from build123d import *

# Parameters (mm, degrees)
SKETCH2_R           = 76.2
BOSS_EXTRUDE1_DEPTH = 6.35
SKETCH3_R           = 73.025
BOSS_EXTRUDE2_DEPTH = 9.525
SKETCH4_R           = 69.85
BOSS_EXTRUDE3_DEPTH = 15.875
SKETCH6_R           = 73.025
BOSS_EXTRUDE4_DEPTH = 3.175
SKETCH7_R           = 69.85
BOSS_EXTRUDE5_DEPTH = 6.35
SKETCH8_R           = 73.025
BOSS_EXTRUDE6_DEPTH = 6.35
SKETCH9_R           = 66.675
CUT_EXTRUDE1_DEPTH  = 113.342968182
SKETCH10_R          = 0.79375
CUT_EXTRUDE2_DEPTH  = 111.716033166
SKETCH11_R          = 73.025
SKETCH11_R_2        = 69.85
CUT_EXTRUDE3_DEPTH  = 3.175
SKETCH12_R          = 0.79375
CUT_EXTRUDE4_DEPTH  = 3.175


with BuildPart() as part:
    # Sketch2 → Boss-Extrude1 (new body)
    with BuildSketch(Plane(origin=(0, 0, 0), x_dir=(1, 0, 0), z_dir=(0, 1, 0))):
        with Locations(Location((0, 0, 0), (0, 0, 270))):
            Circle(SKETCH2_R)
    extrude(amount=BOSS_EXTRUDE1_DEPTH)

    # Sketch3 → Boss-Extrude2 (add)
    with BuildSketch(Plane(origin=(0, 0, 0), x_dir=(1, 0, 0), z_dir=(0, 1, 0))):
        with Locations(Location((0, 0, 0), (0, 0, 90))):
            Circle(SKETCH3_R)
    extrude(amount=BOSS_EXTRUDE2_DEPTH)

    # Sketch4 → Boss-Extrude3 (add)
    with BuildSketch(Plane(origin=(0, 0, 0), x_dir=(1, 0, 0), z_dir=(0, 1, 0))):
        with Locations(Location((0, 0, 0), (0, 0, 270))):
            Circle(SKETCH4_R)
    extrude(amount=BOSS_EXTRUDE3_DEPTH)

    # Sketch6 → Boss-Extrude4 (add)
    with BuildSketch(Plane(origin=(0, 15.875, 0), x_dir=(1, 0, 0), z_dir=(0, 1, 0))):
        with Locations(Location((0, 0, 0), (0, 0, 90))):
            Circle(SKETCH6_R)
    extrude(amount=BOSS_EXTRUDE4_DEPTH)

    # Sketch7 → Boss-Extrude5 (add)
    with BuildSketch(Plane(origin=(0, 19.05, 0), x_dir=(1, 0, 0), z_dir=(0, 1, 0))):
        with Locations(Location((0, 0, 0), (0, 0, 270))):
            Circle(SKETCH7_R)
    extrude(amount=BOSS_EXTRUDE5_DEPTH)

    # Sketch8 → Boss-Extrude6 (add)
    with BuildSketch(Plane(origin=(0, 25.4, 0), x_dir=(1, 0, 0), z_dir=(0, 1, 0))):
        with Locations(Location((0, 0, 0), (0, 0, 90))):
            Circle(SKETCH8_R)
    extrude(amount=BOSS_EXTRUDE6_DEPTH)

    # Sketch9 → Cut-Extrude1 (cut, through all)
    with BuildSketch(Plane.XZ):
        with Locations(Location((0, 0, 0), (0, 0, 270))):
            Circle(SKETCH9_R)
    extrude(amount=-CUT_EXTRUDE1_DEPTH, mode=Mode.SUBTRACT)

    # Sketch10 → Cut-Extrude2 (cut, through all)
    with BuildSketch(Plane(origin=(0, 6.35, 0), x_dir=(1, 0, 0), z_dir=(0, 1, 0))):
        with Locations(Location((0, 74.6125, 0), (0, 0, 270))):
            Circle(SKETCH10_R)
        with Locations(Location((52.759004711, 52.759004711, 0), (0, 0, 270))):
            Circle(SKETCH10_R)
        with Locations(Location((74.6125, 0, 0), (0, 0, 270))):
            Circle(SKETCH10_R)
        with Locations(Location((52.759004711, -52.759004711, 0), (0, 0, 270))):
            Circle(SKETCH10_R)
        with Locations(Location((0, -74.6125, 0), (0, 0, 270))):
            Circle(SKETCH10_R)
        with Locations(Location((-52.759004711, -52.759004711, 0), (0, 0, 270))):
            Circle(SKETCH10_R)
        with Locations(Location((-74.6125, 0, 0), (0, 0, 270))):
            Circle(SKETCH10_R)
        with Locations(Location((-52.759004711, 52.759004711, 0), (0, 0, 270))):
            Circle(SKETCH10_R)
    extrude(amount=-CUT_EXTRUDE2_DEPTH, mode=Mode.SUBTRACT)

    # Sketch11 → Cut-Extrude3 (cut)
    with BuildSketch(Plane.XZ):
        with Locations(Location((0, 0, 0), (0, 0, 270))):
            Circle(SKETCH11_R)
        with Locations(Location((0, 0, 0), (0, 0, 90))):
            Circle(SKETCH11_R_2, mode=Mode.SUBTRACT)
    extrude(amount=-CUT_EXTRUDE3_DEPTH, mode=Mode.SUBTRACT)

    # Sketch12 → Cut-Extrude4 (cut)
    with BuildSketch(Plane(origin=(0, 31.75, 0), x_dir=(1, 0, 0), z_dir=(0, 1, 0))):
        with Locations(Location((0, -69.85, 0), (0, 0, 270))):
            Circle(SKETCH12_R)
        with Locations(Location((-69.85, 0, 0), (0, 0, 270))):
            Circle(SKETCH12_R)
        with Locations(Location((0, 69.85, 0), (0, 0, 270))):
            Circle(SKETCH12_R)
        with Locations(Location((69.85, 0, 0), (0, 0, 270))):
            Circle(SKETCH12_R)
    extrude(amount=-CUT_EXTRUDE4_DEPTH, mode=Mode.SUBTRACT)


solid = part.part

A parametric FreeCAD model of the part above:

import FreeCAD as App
import Part
import Sketcher

V = App.Vector
Q = App.Units.Quantity

doc = App.newDocument("Part")
body = doc.addObject("PartDesign::Body", "Body")

sketch1 = body.newObject("Sketcher::SketchObject", "Sketch")
sketch1.AttachmentSupport = (doc.getObject("XZ_Plane"), [""])
sketch1.MapMode = "FlatFace"
sketch1.addGeometry(Part.Circle(V(0, 0, 0), V(0, 0, 1), 76), False)
sketch1.addConstraint(Sketcher.Constraint("Coincident", 0, 3, -1, 1))
sketch1.addConstraint(Sketcher.Constraint("Diameter", 0, Q("6 in")))
pad1 = body.newObject("PartDesign::Pad", "Pad")
pad1.Profile = sketch1
pad1.Length = Q("0.25 in")
pad1.Reversed = True

sketch2 = body.newObject("Sketcher::SketchObject", "Sketch001")
sketch2.AttachmentSupport = (doc.getObject("XZ_Plane"), [""])
sketch2.MapMode = "FlatFace"
sketch2.addGeometry(Part.Circle(V(0, 0, 0), V(0, 0, 1), 73), False)
sketch2.addConstraint(Sketcher.Constraint("Coincident", 0, 3, -1, 1))
sketch2.addConstraint(Sketcher.Constraint("Diameter", 0, Q("5.75 in")))
pad2 = body.newObject("PartDesign::Pad", "Pad001")
pad2.Profile = sketch2
pad2.Length = Q("0.375 in")
pad2.Reversed = True

sketch3 = body.newObject("Sketcher::SketchObject", "Sketch002")
sketch3.AttachmentSupport = (doc.getObject("XZ_Plane"), [""])
sketch3.MapMode = "FlatFace"
sketch3.addGeometry(Part.Circle(V(0, 0, 0), V(0, 0, 1), 70), False)
sketch3.addConstraint(Sketcher.Constraint("Coincident", 0, 3, -1, 1))
sketch3.addConstraint(Sketcher.Constraint("Diameter", 0, Q("5.5 in")))
pad3 = body.newObject("PartDesign::Pad", "Pad002")
pad3.Profile = sketch3
pad3.Length = Q("0.625 in")
pad3.Reversed = True

sketch4 = body.newObject("Sketcher::SketchObject", "Sketch003")
sketch4.AttachmentSupport = (doc.getObject("XZ_Plane"), [""])
sketch4.MapMode = "FlatFace"
sketch4.AttachmentOffset = App.Placement(V(0, 0, -0.625 * 25.4), App.Rotation())
sketch4.addGeometry(Part.Circle(V(0, 0, 0), V(0, 0, 1), 73), False)
sketch4.addConstraint(Sketcher.Constraint("Coincident", 0, 3, -1, 1))
sketch4.addConstraint(Sketcher.Constraint("Diameter", 0, Q("5.75 in")))
pad4 = body.newObject("PartDesign::Pad", "Pad003")
pad4.Profile = sketch4
pad4.Length = Q("0.125 in")
pad4.Reversed = True

sketch5 = body.newObject("Sketcher::SketchObject", "Sketch004")
sketch5.AttachmentSupport = (doc.getObject("XZ_Plane"), [""])
sketch5.MapMode = "FlatFace"
sketch5.AttachmentOffset = App.Placement(V(0, 0, -0.75 * 25.4), App.Rotation())
sketch5.addGeometry(Part.Circle(V(0, 0, 0), V(0, 0, 1), 70), False)
sketch5.addConstraint(Sketcher.Constraint("Coincident", 0, 3, -1, 1))
sketch5.addConstraint(Sketcher.Constraint("Diameter", 0, Q("5.5 in")))
pad5 = body.newObject("PartDesign::Pad", "Pad004")
pad5.Profile = sketch5
pad5.Length = Q("0.25 in")
pad5.Reversed = True

sketch6 = body.newObject("Sketcher::SketchObject", "Sketch005")
sketch6.AttachmentSupport = (doc.getObject("XZ_Plane"), [""])
sketch6.MapMode = "FlatFace"
sketch6.AttachmentOffset = App.Placement(V(0, 0, -1 * 25.4), App.Rotation())
sketch6.addGeometry(Part.Circle(V(0, 0, 0), V(0, 0, 1), 73), False)
sketch6.addConstraint(Sketcher.Constraint("Coincident", 0, 3, -1, 1))
sketch6.addConstraint(Sketcher.Constraint("Diameter", 0, Q("5.75 in")))
pad6 = body.newObject("PartDesign::Pad", "Pad005")
pad6.Profile = sketch6
pad6.Length = Q("0.25 in")
pad6.Reversed = True

sketch7 = body.newObject("Sketcher::SketchObject", "Sketch006")
sketch7.AttachmentSupport = (doc.getObject("XZ_Plane"), [""])
sketch7.MapMode = "FlatFace"
sketch7.addGeometry(Part.Circle(V(0, 0, 0), V(0, 0, 1), 67), False)
sketch7.addConstraint(Sketcher.Constraint("Coincident", 0, 3, -1, 1))
sketch7.addConstraint(Sketcher.Constraint("Diameter", 0, Q("5.25 in")))
pocket1 = body.newObject("PartDesign::Pocket", "Pocket")
pocket1.Profile = sketch7
pocket1.Type = "ThroughAll"

sketch8 = body.newObject("Sketcher::SketchObject", "Sketch007")
sketch8.AttachmentSupport = (doc.getObject("XZ_Plane"), [""])
sketch8.MapMode = "FlatFace"
sketch8.AttachmentOffset = App.Placement(V(0, 0, -0.25 * 25.4), App.Rotation())
sketch8.addGeometry(Part.Circle(V(0, -74.6, 0), V(0, 0, 1), 0.8), False)
sketch8.addGeometry(Part.Circle(V(52.8, -52.8, 0), V(0, 0, 1), 0.8), False)
sketch8.addGeometry(Part.Circle(V(74.6, 0, 0), V(0, 0, 1), 0.8), False)
sketch8.addGeometry(Part.Circle(V(52.8, 52.8, 0), V(0, 0, 1), 0.8), False)
sketch8.addGeometry(Part.Circle(V(0, 74.6, 0), V(0, 0, 1), 0.8), False)
sketch8.addGeometry(Part.Circle(V(-52.8, 52.8, 0), V(0, 0, 1), 0.8), False)
sketch8.addGeometry(Part.Circle(V(-74.6, 0, 0), V(0, 0, 1), 0.8), False)
sketch8.addGeometry(Part.Circle(V(-52.8, -52.8, 0), V(0, 0, 1), 0.8), False)
sketch8.addConstraint(Sketcher.Constraint("Equal", 0, 1))
sketch8.addConstraint(Sketcher.Constraint("Equal", 1, 2))
sketch8.addConstraint(Sketcher.Constraint("Equal", 2, 3))
sketch8.addConstraint(Sketcher.Constraint("Equal", 3, 4))
sketch8.addConstraint(Sketcher.Constraint("Equal", 4, 5))
sketch8.addConstraint(Sketcher.Constraint("Equal", 5, 6))
sketch8.addConstraint(Sketcher.Constraint("Equal", 6, 7))
sketch8.addConstraint(Sketcher.Constraint("Symmetric", 0, 3, 4, 3, -1, 1))
sketch8.addConstraint(Sketcher.Constraint("Symmetric", 1, 3, 5, 3, -1, 1))
sketch8.addConstraint(Sketcher.Constraint("Symmetric", 2, 3, 6, 3, -1, 1))
sketch8.addConstraint(Sketcher.Constraint("Symmetric", 3, 3, 7, 3, -1, 1))
sketch8.addConstraint(Sketcher.Constraint("Symmetric", 3, 3, 5, 3, -2))
sketch8.addConstraint(Sketcher.Constraint("PointOnObject", 0, 3, -2))
sketch8.addConstraint(Sketcher.Constraint("PointOnObject", 2, 3, -1))
sketch8.addConstraint(Sketcher.Constraint("Diameter", 0, Q("0.0625 in")))
sketch8.addConstraint(Sketcher.Constraint("DistanceY", 0, 3, -1, 1, Q("2.9375 in")))
sketch8.addConstraint(Sketcher.Constraint("DistanceX", -1, 1, 2, 3, Q("2.9375 in")))
sketch8.addConstraint(Sketcher.Constraint("DistanceY", 1, 3, 3, 3, 105.518009))
sketch8.addConstraint(Sketcher.Constraint("DistanceX", 5, 3, 3, 3, 105.518009))
pocket2 = body.newObject("PartDesign::Pocket", "Pocket001")
pocket2.Profile = sketch8
pocket2.Type = "ThroughAll"
pocket2.Reversed = True

sketch9 = body.newObject("Sketcher::SketchObject", "Sketch008")
sketch9.AttachmentSupport = (doc.getObject("XZ_Plane"), [""])
sketch9.MapMode = "FlatFace"
sketch9.addGeometry(Part.Circle(V(0, 0, 0), V(0, 0, 1), 73), False)
sketch9.addGeometry(Part.Circle(V(0, 0, 0), V(0, 0, 1), 70), False)
sketch9.addConstraint(Sketcher.Constraint("Coincident", 0, 3, -1, 1))
sketch9.addConstraint(Sketcher.Constraint("Coincident", 1, 3, -1, 1))
sketch9.addConstraint(Sketcher.Constraint("Diameter", 1, Q("5.5 in")))
sketch9.addConstraint(Sketcher.Constraint("Diameter", 0, Q("5.75 in")))
pocket3 = body.newObject("PartDesign::Pocket", "Pocket002")
pocket3.Profile = sketch9
pocket3.Length = Q("0.125 in")

sketch10 = body.newObject("Sketcher::SketchObject", "Sketch009")
sketch10.AttachmentSupport = (doc.getObject("XZ_Plane"), [""])
sketch10.MapMode = "FlatFace"
sketch10.AttachmentOffset = App.Placement(V(0, 0, -1.25 * 25.4), App.Rotation())
sketch10.addGeometry(Part.Circle(V(0, 69.8, 0), V(0, 0, 1), 0.8), False)
sketch10.addGeometry(Part.Circle(V(-69.8, 0, 0), V(0, 0, 1), 0.8), False)
sketch10.addGeometry(Part.Circle(V(0, -69.8, 0), V(0, 0, 1), 0.8), False)
sketch10.addGeometry(Part.Circle(V(69.8, 0, 0), V(0, 0, 1), 0.8), False)
sketch10.addConstraint(Sketcher.Constraint("Equal", 0, 1))
sketch10.addConstraint(Sketcher.Constraint("Equal", 1, 2))
sketch10.addConstraint(Sketcher.Constraint("Equal", 2, 3))
sketch10.addConstraint(Sketcher.Constraint("Symmetric", 0, 3, 2, 3, -1, 1))
sketch10.addConstraint(Sketcher.Constraint("Symmetric", 1, 3, 3, 3, -1, 1))
sketch10.addConstraint(Sketcher.Constraint("PointOnObject", 0, 3, -2))
sketch10.addConstraint(Sketcher.Constraint("PointOnObject", 1, 3, -1))
sketch10.addConstraint(Sketcher.Constraint("Diameter", 0, Q("0.0625 in")))
sketch10.addConstraint(Sketcher.Constraint("DistanceY", 2, 3, 0, 3, Q("5.5 in")))
sketch10.addConstraint(Sketcher.Constraint("DistanceX", 1, 3, 3, 3, Q("5.5 in")))
pocket4 = body.newObject("PartDesign::Pocket", "Pocket003")
pocket4.Profile = sketch10
pocket4.Length = Q("0.125 in")
pocket4.Reversed = True

doc.recompute()
